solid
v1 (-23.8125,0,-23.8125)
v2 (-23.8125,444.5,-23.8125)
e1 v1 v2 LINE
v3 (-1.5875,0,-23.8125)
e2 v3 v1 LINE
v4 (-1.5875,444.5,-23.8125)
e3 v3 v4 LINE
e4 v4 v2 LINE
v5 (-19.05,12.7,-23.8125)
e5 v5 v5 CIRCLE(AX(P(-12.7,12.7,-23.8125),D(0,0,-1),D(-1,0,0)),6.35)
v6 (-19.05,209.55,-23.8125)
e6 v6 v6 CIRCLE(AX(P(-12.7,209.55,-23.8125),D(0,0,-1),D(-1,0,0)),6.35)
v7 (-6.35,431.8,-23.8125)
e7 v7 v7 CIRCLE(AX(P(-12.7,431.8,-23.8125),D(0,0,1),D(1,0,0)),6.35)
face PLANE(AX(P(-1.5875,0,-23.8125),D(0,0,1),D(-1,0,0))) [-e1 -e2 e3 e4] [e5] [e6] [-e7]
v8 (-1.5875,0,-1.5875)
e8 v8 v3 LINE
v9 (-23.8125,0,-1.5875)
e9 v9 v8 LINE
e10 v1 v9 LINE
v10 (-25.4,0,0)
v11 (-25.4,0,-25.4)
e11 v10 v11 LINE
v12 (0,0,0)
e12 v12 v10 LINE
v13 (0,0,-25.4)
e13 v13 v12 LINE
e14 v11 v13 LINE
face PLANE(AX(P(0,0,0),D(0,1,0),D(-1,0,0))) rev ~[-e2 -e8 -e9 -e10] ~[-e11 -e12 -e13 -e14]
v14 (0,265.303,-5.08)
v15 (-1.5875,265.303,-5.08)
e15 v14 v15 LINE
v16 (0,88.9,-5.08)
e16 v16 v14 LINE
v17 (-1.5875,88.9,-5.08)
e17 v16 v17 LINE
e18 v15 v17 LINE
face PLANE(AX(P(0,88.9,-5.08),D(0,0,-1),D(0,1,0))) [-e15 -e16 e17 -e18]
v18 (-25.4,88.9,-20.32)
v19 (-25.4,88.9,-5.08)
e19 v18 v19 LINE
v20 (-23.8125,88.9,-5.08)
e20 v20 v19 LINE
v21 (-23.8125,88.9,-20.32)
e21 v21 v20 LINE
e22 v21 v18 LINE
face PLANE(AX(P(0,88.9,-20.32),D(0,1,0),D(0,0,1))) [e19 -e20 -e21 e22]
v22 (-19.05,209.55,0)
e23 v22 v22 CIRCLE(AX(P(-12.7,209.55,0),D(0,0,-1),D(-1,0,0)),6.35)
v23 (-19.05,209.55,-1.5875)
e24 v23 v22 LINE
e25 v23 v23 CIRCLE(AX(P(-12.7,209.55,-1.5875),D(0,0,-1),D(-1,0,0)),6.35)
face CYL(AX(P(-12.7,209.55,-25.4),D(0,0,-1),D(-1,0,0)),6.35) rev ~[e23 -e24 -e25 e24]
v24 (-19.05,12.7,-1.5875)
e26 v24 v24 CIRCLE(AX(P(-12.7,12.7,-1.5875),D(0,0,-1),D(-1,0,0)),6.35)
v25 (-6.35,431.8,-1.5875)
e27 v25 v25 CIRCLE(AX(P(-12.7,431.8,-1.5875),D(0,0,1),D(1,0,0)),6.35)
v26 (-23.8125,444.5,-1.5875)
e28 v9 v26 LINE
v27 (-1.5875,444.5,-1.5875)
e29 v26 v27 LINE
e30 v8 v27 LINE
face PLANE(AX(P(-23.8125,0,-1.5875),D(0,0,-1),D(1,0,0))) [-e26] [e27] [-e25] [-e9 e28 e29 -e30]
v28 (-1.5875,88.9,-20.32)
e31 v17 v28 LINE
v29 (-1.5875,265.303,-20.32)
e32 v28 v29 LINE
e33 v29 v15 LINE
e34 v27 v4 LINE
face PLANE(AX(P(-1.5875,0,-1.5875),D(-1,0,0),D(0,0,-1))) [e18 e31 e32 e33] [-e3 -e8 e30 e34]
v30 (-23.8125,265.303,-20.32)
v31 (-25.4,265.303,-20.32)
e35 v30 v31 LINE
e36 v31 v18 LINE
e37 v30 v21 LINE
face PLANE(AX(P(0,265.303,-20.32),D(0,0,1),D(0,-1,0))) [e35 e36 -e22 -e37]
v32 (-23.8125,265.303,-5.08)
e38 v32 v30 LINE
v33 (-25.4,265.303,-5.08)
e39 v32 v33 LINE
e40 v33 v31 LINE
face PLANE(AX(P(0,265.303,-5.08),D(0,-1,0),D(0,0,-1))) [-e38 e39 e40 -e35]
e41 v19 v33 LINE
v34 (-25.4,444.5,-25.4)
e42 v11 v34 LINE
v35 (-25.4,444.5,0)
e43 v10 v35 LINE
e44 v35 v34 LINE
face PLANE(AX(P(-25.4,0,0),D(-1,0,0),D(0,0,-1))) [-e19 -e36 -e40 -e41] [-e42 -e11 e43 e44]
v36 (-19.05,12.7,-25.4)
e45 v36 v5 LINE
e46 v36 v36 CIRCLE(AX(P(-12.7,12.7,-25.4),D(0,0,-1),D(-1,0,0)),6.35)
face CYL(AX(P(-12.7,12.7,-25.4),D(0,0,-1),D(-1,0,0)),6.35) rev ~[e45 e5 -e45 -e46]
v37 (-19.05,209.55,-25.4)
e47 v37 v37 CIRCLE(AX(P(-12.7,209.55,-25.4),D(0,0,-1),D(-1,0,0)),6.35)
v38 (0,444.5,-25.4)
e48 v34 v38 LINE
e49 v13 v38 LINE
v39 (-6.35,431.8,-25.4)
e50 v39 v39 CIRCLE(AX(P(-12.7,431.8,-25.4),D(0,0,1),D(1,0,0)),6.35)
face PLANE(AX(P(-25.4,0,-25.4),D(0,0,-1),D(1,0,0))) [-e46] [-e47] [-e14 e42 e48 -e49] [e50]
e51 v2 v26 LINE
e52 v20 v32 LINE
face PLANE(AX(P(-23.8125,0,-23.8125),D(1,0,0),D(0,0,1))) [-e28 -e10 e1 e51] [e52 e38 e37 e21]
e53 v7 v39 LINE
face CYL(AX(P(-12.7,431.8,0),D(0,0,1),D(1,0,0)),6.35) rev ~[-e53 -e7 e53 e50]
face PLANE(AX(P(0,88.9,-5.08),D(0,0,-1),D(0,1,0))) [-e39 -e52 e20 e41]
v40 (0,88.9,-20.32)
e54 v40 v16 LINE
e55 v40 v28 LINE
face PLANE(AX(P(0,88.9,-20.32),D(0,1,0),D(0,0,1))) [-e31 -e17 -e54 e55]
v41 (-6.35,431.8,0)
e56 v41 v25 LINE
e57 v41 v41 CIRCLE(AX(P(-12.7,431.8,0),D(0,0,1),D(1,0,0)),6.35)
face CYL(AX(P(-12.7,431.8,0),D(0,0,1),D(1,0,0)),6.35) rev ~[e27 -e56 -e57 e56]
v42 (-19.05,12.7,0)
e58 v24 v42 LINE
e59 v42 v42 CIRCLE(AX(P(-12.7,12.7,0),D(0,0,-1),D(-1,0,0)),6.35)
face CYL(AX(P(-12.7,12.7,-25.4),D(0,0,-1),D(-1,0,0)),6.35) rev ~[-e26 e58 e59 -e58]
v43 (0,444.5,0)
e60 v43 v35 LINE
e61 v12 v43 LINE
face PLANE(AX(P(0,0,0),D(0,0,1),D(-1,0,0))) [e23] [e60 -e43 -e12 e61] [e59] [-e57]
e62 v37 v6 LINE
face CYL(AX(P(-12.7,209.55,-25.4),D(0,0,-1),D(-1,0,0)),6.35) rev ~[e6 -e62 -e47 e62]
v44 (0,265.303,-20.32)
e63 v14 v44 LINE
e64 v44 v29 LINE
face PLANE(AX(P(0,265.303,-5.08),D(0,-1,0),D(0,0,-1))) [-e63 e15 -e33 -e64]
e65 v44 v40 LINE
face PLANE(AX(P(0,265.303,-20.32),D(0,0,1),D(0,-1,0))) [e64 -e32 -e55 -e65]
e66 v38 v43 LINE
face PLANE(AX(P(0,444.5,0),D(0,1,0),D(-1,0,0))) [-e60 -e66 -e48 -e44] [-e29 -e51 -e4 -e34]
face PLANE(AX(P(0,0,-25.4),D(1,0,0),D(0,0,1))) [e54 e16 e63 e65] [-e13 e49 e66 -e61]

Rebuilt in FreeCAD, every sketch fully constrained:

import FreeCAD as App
import Part
import Sketcher
from FreeCAD import Vector
Q = App.Units.Quantity


def add_polygon(sketch, points):
    """Adds a closed chain of lines whose ends are joined by coincident constraints."""
    first, n = sketch.GeometryCount, len(points)
    for a, b in zip(points, points[1:] + points[:1]):
        sketch.addGeometry(Part.LineSegment(App.Vector(*a, 0), App.Vector(*b, 0)), False)
    for i in range(n):
        sketch.addConstraint(Sketcher.Constraint("Coincident", first + i, 2, first + (i + 1) % n, 1))

doc = App.newDocument("Part")
body = doc.addObject("PartDesign::Body", "Body")

sketch1 = body.newObject("Sketcher::SketchObject", "Sketch")
sketch1.AttachmentSupport = (doc.getObject("XZ_Plane"), [""])
sketch1.MapMode = "FlatFace"
add_polygon(sketch1, [(-25, 0), (0, 0), (0, -25), (-25, -25)])
add_polygon(sketch1, [(-24, -2), (-24, -24), (-2, -24), (-2, -2)])
sketch1.addConstraint(Sketcher.Constraint("Horizontal", 0))
sketch1.addConstraint(Sketcher.Constraint("Vertical", 1))
sketch1.addConstraint(Sketcher.Constraint("Horizontal", 2))
sketch1.addConstraint(Sketcher.Constraint("Vertical", 3))
sketch1.addConstraint(Sketcher.Constraint("Vertical", 4))
sketch1.addConstraint(Sketcher.Constraint("Horizontal", 5))
sketch1.addConstraint(Sketcher.Constraint("Vertical", 6))
sketch1.addConstraint(Sketcher.Constraint("Horizontal", 7))
sketch1.addConstraint(Sketcher.Constraint("Coincident", 0, 2, -1, 1))
sketch1.addConstraint(Sketcher.Constraint("Equal", 2, 1))
sketch1.addConstraint(Sketcher.Constraint("Equal", 7, 4))
sketch1.addConstraint(Sketcher.Constraint("DistanceX", 0, 1, 0, 2, Q("1 in")))
sketch1.addConstraint(Sketcher.Constraint("DistanceX", 5, 2, -1, 1, Q("0.0625 in")))
sketch1.addConstraint(Sketcher.Constraint("DistanceY", 6, 2, -1, 1, Q("0.0625 in")))
sketch1.addConstraint(Sketcher.Constraint("DistanceX", 2, 2, 4, 2, Q("0.0625 in")))
pad1 = body.newObject("PartDesign::Pad", "Pad")
pad1.Profile = sketch1
pad1.Length = Q("17.5 in")
pad1.Reversed = True

sketch2 = body.newObject("Sketcher::SketchObject", "Sketch001")
sketch2.AttachmentSupport = (doc.getObject("XY_Plane"), [""])
sketch2.MapMode = "FlatFace"
sketch2.addGeometry(Part.Circle(Vector(-13, 432, 0), Vector(0, 0, 1), 6), False)
sketch2.addConstraint(Sketcher.Constraint("Diameter", 0, Q("0.5 in")))
sketch2.addConstraint(Sketcher.Constraint("DistanceX", 0, 3, -1, 1, Q("0.5 in")))
sketch2.addConstraint(Sketcher.Constraint("DistanceY", -1, 1, 0, 3, Q("17 in")))
pocket1 = body.newObject("PartDesign::Pocket", "Pocket")
pocket1.Profile = sketch2
pocket1.Length = Q("1 in")

sketch3 = body.newObject("Sketcher::SketchObject", "Sketch002")
sketch3.AttachmentSupport = (doc.getObject("XY_Plane"), [""])
sketch3.MapMode = "FlatFace"
sketch3.AttachmentOffset = App.Placement(Vector(0, 0, -1 * 25.4), App.Rotation())
sketch3.addGeometry(Part.Circle(Vector(-13, 13, 0), Vector(0, 0, 1), 6), False)
sketch3.addConstraint(Sketcher.Constraint("Diameter", 0, Q("0.5 in")))
sketch3.addConstraint(Sketcher.Constraint("DistanceX", 0, 3, -1, 1, Q("0.5 in")))
sketch3.addConstraint(Sketcher.Constraint("DistanceY", -1, 1, 0, 3, Q("0.5 in")))
pocket2 = body.newObject("PartDesign::Pocket", "Pocket001")
pocket2.Profile = sketch3
pocket2.Length = Q("1 in")
pocket2.Reversed = True

sketch4 = body.newObject("Sketcher::SketchObject", "Sketch003")
sketch4.AttachmentSupport = (doc.getObject("XY_Plane"), [""])
sketch4.MapMode = "FlatFace"
sketch4.AttachmentOffset = App.Placement(Vector(0, 0, -1 * 25.4), App.Rotation())
sketch4.addGeometry(Part.Circle(Vector(-13, 210, 0), Vector(0, 0, 1), 6), False)
sketch4.addConstraint(Sketcher.Constraint("Diameter", 0, Q("0.5 in")))
sketch4.addConstraint(Sketcher.Constraint("DistanceX", 0, 3, -1, 1, Q("0.5 in")))
sketch4.addConstraint(Sketcher.Constraint("DistanceY", -1, 1, 0, 3, Q("8.25 in")))
pocket3 = body.newObject("PartDesign::Pocket", "Pocket002")
pocket3.Profile = sketch4
pocket3.Length = Q("1 in")
pocket3.Reversed = True

sketch5 = body.newObject("Sketcher::SketchObject", "Sketch004")
sketch5.AttachmentSupport = (doc.getObject("YZ_Plane"), [""])
sketch5.MapMode = "FlatFace"
add_polygon(sketch5, [(265, -20), (265, -5), (89, -5), (89, -20)])
sketch5.addConstraint(Sketcher.Constraint("Vertical", 0))
sketch5.addConstraint(Sketcher.Constraint("Horizontal", 1))
sketch5.addConstraint(Sketcher.Constraint("Vertical", 2))
sketch5.addConstraint(Sketcher.Constraint("Horizontal", 3))
sketch5.addConstraint(Sketcher.Constraint("DistanceY", 0, 2, -1, 1, Q("0.2 in")))
sketch5.addConstraint(Sketcher.Constraint("DistanceX", -1, 1, 1, 2, Q("3.5 in")))
sketch5.addConstraint(Sketcher.Constraint("DistanceX", 1, 2, 1, 1, Q("6.945 in")))
sketch5.addConstraint(Sketcher.Constraint("DistanceY", 0, 1, 0, 2, Q("0.6 in")))
pocket4 = body.newObject("PartDesign::Pocket", "Pocket003")
pocket4.Profile = sketch5
pocket4.Length = Q("1 in")

doc.recompute()
